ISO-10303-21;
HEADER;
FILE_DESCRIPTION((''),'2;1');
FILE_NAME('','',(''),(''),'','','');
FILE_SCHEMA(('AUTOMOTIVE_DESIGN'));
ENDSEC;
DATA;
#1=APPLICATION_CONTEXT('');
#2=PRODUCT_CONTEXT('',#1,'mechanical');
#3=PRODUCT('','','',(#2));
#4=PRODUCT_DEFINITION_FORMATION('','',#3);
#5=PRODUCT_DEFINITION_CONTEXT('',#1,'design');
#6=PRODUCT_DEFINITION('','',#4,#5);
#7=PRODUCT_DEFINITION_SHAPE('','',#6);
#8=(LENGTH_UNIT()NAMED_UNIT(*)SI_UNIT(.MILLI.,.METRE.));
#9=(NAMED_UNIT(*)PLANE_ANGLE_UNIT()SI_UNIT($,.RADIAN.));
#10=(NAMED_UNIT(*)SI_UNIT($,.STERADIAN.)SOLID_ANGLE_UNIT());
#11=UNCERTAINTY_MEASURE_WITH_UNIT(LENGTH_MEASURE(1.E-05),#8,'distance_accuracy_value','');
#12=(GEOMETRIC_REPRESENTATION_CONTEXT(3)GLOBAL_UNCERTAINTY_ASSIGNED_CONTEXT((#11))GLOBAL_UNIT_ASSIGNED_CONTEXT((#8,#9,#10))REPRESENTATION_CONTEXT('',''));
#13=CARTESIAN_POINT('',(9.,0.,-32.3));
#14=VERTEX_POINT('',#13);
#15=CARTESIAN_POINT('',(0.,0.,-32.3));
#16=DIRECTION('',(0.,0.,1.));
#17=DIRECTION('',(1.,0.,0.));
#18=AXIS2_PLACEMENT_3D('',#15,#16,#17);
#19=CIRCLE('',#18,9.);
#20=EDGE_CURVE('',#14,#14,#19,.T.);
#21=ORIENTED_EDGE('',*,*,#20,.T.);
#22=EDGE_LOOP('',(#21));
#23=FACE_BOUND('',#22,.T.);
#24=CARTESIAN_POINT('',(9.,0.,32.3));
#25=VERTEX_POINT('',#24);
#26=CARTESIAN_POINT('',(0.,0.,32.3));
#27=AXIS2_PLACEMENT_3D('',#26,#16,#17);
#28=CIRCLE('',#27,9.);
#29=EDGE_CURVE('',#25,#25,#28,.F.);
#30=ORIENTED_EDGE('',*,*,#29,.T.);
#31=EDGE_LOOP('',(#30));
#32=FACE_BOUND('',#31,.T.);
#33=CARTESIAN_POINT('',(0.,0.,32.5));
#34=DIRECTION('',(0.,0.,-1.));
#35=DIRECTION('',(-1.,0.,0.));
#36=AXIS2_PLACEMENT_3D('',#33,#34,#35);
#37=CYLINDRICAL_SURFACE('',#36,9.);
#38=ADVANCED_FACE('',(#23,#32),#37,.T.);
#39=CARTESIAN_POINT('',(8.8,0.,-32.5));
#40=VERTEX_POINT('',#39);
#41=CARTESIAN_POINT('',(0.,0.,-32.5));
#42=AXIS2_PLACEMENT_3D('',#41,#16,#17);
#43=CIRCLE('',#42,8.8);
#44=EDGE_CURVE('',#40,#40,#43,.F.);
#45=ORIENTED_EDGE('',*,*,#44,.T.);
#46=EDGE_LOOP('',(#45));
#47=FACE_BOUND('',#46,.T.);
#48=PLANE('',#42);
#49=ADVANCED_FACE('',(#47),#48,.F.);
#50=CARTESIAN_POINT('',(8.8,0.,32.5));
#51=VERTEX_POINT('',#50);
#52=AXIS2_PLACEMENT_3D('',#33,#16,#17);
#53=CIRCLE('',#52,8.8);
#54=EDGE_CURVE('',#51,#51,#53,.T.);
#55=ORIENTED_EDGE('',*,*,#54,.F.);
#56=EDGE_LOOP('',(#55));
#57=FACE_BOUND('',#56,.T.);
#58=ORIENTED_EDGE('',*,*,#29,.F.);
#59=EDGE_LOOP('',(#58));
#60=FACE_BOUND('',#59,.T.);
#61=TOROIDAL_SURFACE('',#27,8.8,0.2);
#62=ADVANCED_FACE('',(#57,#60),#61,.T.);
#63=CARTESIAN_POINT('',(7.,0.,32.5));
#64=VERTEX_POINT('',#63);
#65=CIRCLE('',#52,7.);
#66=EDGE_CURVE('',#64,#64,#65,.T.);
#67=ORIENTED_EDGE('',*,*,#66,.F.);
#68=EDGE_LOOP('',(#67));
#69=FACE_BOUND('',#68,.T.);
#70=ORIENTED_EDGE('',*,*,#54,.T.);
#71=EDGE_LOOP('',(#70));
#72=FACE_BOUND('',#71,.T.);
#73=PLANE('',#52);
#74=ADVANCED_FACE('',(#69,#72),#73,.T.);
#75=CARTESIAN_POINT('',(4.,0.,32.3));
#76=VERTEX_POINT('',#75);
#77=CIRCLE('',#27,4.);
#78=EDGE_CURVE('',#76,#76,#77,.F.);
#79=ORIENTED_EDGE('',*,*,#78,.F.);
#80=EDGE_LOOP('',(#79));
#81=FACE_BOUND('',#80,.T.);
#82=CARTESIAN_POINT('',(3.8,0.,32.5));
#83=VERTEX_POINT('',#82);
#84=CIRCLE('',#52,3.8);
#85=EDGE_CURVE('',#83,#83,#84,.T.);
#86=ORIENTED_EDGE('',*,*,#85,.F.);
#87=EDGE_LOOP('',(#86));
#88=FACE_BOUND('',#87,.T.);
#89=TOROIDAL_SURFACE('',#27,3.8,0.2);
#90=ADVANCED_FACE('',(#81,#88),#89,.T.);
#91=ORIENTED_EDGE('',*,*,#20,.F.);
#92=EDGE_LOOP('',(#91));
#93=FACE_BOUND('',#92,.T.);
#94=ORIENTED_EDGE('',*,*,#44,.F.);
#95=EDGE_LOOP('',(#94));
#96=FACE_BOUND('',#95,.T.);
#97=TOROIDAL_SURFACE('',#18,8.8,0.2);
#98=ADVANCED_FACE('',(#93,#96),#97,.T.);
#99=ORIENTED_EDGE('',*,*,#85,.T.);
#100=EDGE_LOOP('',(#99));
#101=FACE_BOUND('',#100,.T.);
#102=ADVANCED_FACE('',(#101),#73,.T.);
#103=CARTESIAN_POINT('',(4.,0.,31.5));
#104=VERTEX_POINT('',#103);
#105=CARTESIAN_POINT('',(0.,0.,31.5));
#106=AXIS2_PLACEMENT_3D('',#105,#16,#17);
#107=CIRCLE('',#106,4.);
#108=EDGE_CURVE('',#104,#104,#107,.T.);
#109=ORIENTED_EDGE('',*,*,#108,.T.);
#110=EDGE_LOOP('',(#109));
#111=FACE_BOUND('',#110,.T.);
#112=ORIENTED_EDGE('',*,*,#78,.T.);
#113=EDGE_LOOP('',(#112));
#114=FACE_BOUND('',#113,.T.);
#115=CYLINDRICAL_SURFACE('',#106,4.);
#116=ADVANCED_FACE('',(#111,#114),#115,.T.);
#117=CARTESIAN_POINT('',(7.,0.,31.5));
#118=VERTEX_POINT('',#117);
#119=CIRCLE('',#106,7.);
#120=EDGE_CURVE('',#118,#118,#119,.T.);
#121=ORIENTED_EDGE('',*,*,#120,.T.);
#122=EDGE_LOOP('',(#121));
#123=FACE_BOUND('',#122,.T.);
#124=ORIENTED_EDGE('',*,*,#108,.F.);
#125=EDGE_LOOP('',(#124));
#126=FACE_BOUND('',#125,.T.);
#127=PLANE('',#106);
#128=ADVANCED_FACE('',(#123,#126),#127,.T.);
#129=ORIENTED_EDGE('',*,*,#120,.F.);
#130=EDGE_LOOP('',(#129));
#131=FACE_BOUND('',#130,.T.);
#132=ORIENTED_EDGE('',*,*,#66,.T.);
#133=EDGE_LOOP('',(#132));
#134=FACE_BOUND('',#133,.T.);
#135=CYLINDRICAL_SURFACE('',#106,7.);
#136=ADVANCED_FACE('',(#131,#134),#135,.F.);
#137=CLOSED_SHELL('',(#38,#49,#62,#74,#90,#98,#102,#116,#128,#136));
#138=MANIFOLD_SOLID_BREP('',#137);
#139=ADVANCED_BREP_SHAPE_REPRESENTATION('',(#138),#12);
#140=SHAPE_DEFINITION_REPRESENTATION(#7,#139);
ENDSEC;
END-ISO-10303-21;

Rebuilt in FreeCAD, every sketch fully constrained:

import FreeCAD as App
import Part
import Sketcher
from FreeCAD import Vector
Q = App.Units.Quantity


def edges_at(feature, points):
    """Names of the edges that pass closest to the given points."""
    edges = feature.Shape.Edges
    near = lambda p: min(range(len(edges)), key=lambda i: edges[i].distToShape(Part.Vertex(*p))[0])
    return sorted({f"Edge{near(p) + 1}" for p in points})

doc = App.newDocument("Part")
params = doc.addObject("Spreadsheet::Sheet", "Params")
for row, (alias, value) in enumerate([
    ("sketch1_diameter", "18 mm"),
    ("pad1_length", "65 mm"),
    ("sketch2_diameter", "14 mm"),
    ("sketch2_diameter2", "8 mm"),
    ("pocket1_length", "1 mm"),
    ("fillet_radius", "0.2 mm"),
], start=1):
    params.set(f"A{row}", alias)
    params.set(f"B{row}", "=" + value)
    params.setAlias(f"B{row}", alias)

body = doc.addObject("PartDesign::Body", "Body")

sketch1 = body.newObject("Sketcher::SketchObject", "Sketch")
sketch1.AttachmentSupport = (doc.getObject("XY_Plane"), [""])
sketch1.MapMode = "FlatFace"
sketch1.addGeometry(Part.Circle(Vector(0, 0, 0), Vector(0, 0, 1), 9), False)
sketch1.addConstraint(Sketcher.Constraint("Coincident", 0, 3, -1, 1))
sketch1.addConstraint(Sketcher.Constraint("Diameter", 0, Q("18 mm")))
sketch1.setExpression("Constraints[1]", "Params.sketch1_diameter")
pad1 = body.newObject("PartDesign::Pad", "Pad")
pad1.Profile = sketch1
pad1.setExpression("Length", "Params.pad1_length")
pad1.Midplane = True

sketch2 = body.newObject("Sketcher::SketchObject", "Sketch001")
sketch2.AttachmentSupport = (doc.getObject("XY_Plane"), [""])
sketch2.MapMode = "FlatFace"
sketch2.AttachmentOffset = App.Placement(Vector(0, 0, 32.5), App.Rotation())
sketch2.addGeometry(Part.Circle(Vector(0, 0, 0), Vector(0, 0, 1), 7), False)
sketch2.addGeometry(Part.Circle(Vector(0, 0, 0), Vector(0, 0, 1), 4), False)
sketch2.addConstraint(Sketcher.Constraint("Coincident", 0, 3, -1, 1))
sketch2.addConstraint(Sketcher.Constraint("Coincident", 1, 3, -1, 1))
sketch2.addConstraint(Sketcher.Constraint("Diameter", 0, Q("14 mm")))
sketch2.addConstraint(Sketcher.Constraint("Diameter", 1, Q("8 mm")))
sketch2.setExpression("Constraints[2]", "Params.sketch2_diameter")
sketch2.setExpression("Constraints[3]", "Params.sketch2_diameter2")
pocket1 = body.newObject("PartDesign::Pocket", "Pocket")
pocket1.Profile = sketch2
pocket1.setExpression("Length", "Params.pocket1_length")
doc.recompute()

fillet = body.newObject("PartDesign::Fillet", "Fillet")
fillet.Base = (pocket1, edges_at(pocket1, [(-4, 0, 32.5), (-9, 0, -32.5), (-9, 0, 32.5)]))
fillet.setExpression("Radius", "Params.fillet_radius")

doc.recompute()
